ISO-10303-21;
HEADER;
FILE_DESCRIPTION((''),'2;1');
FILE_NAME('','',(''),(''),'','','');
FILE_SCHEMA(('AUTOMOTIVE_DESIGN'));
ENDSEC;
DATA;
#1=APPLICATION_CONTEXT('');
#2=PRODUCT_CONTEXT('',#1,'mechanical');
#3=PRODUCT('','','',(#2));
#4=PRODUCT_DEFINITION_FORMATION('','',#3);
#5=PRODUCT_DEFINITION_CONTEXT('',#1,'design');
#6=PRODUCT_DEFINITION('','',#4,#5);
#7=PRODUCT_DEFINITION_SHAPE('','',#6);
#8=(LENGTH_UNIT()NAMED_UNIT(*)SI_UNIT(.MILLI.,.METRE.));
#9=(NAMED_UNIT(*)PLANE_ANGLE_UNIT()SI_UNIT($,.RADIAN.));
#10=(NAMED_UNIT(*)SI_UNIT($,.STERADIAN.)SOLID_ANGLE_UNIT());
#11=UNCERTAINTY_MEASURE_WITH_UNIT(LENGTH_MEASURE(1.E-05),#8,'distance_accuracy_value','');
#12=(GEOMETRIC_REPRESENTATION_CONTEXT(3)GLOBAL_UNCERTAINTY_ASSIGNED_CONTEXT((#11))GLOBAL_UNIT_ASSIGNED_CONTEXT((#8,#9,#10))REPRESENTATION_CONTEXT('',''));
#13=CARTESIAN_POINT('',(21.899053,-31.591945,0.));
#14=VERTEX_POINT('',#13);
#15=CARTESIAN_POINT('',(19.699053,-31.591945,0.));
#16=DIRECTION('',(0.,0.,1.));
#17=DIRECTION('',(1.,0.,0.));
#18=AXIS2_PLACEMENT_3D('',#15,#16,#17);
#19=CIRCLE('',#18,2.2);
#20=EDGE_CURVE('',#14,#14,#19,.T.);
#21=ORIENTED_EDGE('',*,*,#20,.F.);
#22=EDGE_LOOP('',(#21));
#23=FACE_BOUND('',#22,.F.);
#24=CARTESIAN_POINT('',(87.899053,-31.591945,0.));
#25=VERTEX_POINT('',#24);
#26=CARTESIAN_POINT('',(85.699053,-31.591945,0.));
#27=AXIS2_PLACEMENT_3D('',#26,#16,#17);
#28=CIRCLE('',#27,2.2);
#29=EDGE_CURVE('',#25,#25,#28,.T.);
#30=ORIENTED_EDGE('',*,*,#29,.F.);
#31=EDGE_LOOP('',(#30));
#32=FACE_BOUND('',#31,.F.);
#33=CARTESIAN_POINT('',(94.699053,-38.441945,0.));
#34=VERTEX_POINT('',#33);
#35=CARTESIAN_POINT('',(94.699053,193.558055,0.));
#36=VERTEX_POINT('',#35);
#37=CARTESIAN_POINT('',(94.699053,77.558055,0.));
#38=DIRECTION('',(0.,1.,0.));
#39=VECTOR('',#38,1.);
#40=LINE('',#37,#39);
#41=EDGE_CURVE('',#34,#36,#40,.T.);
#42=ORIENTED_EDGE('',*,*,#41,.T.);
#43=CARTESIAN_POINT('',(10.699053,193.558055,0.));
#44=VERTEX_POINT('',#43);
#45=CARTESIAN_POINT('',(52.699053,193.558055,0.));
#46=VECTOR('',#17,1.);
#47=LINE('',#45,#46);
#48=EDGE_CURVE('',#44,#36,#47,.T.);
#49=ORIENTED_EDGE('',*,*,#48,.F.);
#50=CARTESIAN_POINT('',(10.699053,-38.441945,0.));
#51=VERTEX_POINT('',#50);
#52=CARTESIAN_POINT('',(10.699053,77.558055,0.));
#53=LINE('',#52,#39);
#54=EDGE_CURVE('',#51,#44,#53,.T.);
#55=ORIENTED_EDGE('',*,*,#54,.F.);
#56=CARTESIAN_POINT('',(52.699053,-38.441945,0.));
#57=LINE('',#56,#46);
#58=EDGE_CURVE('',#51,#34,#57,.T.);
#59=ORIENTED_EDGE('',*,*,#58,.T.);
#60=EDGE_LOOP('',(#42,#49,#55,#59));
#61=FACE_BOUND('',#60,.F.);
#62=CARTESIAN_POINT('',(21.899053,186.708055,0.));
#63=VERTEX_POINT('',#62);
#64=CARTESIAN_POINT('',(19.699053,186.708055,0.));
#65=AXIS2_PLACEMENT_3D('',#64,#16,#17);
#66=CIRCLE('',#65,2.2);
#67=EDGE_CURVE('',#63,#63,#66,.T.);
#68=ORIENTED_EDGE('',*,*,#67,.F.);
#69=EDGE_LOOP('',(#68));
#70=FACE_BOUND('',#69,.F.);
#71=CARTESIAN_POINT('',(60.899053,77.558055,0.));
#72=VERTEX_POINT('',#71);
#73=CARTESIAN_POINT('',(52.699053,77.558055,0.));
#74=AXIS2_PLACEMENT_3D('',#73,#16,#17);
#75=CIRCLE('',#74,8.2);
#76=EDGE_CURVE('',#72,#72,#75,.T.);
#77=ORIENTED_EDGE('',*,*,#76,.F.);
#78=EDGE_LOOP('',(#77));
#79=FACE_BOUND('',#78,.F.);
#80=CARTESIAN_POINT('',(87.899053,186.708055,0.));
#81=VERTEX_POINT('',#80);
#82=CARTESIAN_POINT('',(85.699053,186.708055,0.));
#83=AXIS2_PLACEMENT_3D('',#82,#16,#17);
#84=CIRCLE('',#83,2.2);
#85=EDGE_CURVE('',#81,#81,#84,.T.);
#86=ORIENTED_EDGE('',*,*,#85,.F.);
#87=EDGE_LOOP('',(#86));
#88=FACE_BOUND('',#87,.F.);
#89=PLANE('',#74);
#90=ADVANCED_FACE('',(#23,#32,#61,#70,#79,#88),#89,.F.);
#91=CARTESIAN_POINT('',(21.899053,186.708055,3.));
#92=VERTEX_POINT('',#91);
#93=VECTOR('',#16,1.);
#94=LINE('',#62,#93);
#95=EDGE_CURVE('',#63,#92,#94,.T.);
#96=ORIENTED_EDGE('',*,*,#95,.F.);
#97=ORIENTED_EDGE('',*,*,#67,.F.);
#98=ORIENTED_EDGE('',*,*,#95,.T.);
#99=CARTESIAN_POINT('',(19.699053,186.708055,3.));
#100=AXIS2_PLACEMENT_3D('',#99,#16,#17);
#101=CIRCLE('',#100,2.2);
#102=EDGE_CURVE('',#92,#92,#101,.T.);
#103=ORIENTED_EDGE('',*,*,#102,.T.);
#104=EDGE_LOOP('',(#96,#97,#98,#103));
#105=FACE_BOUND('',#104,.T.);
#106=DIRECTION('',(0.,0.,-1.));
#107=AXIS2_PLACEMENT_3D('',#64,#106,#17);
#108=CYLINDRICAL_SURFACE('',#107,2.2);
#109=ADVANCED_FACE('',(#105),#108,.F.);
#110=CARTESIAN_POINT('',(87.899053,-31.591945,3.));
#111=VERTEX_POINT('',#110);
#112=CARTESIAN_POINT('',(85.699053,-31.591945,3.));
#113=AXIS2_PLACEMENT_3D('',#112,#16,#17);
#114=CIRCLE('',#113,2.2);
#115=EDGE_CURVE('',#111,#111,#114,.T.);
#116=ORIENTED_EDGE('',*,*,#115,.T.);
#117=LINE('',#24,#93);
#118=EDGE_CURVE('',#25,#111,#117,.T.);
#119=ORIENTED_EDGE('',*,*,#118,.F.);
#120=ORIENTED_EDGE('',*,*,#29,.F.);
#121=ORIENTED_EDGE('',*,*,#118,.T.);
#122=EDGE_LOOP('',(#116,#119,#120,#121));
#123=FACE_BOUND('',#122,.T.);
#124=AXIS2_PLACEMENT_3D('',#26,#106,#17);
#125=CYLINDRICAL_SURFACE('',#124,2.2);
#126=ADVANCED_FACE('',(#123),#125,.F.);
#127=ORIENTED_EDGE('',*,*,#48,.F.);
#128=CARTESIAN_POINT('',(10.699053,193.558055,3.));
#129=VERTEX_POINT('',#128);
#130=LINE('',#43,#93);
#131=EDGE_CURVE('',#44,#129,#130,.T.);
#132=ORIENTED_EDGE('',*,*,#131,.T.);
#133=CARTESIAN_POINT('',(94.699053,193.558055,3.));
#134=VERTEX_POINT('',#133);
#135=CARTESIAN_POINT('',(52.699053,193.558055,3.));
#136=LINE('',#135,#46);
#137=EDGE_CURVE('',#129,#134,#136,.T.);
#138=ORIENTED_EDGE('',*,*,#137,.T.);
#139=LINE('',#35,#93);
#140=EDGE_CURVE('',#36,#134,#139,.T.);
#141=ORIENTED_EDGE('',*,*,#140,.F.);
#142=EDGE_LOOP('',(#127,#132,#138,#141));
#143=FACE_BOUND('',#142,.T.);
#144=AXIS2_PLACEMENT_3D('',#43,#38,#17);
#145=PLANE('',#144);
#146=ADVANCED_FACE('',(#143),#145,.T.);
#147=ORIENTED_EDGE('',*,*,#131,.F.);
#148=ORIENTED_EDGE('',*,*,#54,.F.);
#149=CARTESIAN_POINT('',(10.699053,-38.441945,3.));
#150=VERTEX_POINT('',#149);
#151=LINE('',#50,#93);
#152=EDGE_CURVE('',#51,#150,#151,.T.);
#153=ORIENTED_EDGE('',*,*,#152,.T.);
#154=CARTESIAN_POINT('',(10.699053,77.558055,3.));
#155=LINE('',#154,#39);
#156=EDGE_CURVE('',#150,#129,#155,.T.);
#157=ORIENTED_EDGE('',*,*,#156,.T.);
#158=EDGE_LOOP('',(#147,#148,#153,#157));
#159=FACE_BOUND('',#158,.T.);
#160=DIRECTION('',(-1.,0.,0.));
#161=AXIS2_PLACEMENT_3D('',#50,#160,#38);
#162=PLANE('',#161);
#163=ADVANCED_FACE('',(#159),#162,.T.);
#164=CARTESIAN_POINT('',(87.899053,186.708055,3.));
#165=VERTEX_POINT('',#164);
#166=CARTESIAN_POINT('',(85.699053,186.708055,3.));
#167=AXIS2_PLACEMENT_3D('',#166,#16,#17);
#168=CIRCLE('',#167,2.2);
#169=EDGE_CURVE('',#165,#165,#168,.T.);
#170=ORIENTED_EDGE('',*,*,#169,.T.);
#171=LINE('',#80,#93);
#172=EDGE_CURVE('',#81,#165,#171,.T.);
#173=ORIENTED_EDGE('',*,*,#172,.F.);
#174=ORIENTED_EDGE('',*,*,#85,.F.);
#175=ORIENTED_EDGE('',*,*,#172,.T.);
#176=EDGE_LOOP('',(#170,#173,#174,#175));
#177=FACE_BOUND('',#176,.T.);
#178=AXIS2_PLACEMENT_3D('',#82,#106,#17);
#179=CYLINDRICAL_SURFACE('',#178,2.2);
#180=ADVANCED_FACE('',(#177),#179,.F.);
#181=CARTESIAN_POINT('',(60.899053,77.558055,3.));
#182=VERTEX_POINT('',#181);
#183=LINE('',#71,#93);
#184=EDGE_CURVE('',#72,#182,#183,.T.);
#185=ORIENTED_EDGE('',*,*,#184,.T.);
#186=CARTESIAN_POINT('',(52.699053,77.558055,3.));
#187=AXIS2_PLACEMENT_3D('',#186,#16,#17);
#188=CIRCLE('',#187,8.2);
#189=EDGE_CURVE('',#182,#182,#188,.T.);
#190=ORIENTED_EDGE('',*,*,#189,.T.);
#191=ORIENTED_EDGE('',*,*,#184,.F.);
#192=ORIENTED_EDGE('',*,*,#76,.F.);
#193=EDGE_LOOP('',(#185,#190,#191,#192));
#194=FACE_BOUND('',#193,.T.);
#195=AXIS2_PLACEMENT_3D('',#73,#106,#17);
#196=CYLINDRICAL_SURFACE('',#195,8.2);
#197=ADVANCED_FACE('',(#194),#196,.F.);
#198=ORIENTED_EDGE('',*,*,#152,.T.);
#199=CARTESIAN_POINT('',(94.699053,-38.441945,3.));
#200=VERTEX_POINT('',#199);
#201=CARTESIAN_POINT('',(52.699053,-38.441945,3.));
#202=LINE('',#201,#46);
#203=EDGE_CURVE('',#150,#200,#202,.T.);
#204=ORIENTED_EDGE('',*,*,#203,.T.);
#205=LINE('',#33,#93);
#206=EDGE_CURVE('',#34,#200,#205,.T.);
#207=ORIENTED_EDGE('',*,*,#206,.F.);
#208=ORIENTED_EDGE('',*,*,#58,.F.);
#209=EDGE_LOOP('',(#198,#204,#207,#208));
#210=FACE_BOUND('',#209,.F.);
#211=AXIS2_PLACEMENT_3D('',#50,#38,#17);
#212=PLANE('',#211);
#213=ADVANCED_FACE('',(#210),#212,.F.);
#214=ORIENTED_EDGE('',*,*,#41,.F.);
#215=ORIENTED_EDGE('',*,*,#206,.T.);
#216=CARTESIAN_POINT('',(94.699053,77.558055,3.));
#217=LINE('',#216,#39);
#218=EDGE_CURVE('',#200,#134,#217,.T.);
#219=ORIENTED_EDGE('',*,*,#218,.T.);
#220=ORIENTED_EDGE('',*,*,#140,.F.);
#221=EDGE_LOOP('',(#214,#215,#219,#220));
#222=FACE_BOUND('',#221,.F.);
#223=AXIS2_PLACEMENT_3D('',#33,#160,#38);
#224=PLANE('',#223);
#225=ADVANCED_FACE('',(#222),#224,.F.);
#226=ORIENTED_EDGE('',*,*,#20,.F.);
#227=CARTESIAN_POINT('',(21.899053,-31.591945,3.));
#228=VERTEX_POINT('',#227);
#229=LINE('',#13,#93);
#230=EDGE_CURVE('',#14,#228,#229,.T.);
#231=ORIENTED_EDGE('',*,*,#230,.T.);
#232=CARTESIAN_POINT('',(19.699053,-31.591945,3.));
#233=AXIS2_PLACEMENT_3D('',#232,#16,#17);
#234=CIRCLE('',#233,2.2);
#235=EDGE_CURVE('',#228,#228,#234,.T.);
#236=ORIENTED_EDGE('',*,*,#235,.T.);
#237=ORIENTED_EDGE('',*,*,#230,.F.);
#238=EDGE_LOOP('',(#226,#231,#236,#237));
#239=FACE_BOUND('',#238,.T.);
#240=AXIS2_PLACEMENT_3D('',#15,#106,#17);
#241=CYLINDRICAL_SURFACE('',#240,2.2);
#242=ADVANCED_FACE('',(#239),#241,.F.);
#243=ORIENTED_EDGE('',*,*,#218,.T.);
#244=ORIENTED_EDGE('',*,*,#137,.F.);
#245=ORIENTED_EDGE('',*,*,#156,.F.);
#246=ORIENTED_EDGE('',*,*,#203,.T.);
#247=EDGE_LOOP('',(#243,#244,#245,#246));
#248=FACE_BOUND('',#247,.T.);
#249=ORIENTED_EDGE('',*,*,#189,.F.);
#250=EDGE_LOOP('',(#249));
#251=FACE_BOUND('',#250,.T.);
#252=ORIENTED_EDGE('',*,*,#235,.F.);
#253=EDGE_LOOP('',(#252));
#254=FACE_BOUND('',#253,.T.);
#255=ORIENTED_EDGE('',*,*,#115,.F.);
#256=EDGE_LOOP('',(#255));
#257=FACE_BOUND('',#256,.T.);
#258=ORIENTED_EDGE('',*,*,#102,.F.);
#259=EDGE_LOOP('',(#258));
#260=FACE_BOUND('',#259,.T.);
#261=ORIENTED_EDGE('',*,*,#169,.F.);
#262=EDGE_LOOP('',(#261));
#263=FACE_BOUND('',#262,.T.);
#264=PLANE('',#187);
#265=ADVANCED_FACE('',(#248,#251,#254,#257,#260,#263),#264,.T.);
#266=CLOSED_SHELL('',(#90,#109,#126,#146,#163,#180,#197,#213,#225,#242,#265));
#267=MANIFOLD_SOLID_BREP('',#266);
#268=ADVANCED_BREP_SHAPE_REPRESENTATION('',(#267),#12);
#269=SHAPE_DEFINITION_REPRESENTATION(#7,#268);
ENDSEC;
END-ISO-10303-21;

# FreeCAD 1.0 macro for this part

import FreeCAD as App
import Part
import Sketcher
Q = App.Units.Quantity

doc = App.newDocument("Part")
body = doc.addObject("PartDesign::Body", "Body")

sketch1 = body.newObject("Sketcher::SketchObject", "Sketch")
sketch1.AttachmentSupport = (doc.getObject("XY_Plane"), [""])
sketch1.MapMode = "FlatFace"
sketch1.addGeometry([
    Part.LineSegment(App.Vector(10.7, 193.6, 0), App.Vector(10.7, -38.4, 0)),
    Part.LineSegment(App.Vector(10.7, -38.4, 0), App.Vector(94.7, -38.4, 0)),
    Part.LineSegment(App.Vector(94.7, -38.4, 0), App.Vector(94.7, 193.6, 0)),
    Part.LineSegment(App.Vector(94.7, 193.6, 0), App.Vector(10.7, 193.6, 0)),
    Part.Circle(App.Vector(19.7, -31.6, 0), App.Vector(0, 0, 1), 2.2),
    Part.Circle(App.Vector(85.7, -31.6, 0), App.Vector(0, 0, 1), 2.2),
    Part.Circle(App.Vector(19.7, 186.7, 0), App.Vector(0, 0, 1), 2.2),
    Part.Circle(App.Vector(52.7, 77.6, 0), App.Vector(0, 0, 1), 8.2),
    Part.Circle(App.Vector(85.7, 186.7, 0), App.Vector(0, 0, 1), 2.2),
], False)
sketch1.addConstraint([
    Sketcher.Constraint("Coincident", 0, 2, 1, 1),
    Sketcher.Constraint("Coincident", 1, 2, 2, 1),
    Sketcher.Constraint("Coincident", 2, 2, 3, 1),
    Sketcher.Constraint("Coincident", 3, 2, 0, 1),
    Sketcher.Constraint("Vertical", 0),
    Sketcher.Constraint("Horizontal", 1),
    Sketcher.Constraint("Vertical", 2),
    Sketcher.Constraint("Horizontal", 3),
    Sketcher.Constraint("Equal", 4, 5),
    Sketcher.Constraint("Equal", 5, 6),
    Sketcher.Constraint("Equal", 6, 8),
    Sketcher.Constraint("Horizontal", 4, 3, 5, 3),
    Sketcher.Constraint("Horizontal", 6, 3, 8, 3),
    Sketcher.Constraint("Vertical", 4, 3, 6, 3),
    Sketcher.Constraint("Vertical", 5, 3, 8, 3),
    Sketcher.Constraint("Diameter", 4, Q("4.4 mm")),
    Sketcher.Constraint("Diameter", 7, Q("16.4 mm")),
    Sketcher.Constraint("DistanceX", 1, 1, 1, 2, Q("84 mm")),
    Sketcher.Constraint("DistanceY", 0, 2, 0, 1, Q("232 mm")),
    Sketcher.Constraint("DistanceX", 4, 3, 5, 3, Q("66 mm")),
    Sketcher.Constraint("DistanceX", 4, 3, 7, 3, Q("33 mm")),
    Sketcher.Constraint("DistanceX", 0, 2, 4, 3, Q("9 mm")),
    Sketcher.Constraint("DistanceY", 0, 2, 7, 3, Q("116 mm")),
    Sketcher.Constraint("DistanceY", 4, 3, 6, 3, Q("218.3 mm")),
    Sketcher.Constraint("DistanceY", 4, 3, 7, 3, Q("109.15 mm")),
    Sketcher.Constraint("DistanceX", -1, 1, 4, 3, Q("19.699053 mm")),
    Sketcher.Constraint("DistanceY", 4, 3, -1, 1, Q("31.591945 mm")),
])
pad1 = body.newObject("PartDesign::Pad", "Pad")
pad1.Profile = sketch1
pad1.Length = 3

doc.recompute()
